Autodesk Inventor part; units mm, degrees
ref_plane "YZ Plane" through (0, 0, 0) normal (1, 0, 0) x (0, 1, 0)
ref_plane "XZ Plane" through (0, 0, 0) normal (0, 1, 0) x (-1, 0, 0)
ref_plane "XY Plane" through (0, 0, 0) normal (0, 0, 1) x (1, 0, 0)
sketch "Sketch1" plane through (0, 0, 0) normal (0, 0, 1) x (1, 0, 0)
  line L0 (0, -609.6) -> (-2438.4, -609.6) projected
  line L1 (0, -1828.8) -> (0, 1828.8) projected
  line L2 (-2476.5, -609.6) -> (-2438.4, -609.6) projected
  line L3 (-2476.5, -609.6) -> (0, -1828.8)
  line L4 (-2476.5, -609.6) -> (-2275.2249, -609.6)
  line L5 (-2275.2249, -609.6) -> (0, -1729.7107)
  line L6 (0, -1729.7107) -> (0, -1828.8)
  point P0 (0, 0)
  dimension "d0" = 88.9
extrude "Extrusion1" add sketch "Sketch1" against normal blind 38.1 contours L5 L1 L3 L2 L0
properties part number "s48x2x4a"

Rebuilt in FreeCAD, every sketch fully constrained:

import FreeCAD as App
import Part
import Sketcher
from FreeCAD import Vector
Q = App.Units.Quantity

doc = App.newDocument("Part")
body = doc.addObject("PartDesign::Body", "Body")

sketch1 = body.newObject("Sketcher::SketchObject", "Sketch")
sketch1.AttachmentSupport = (doc.getObject("XY_Plane"), [""])
sketch1.MapMode = "FlatFace"
sketch1.addGeometry([
    Part.LineSegment(Vector(0, -1730, 0), Vector(-2275, -610, 0)),
    Part.LineSegment(Vector(-2275, -610, 0), Vector(-2476, -610, 0)),
    Part.LineSegment(Vector(-2476, -610, 0), Vector(0, -1829, 0)),
    Part.LineSegment(Vector(0, -1829, 0), Vector(0, -1730, 0)),
], False)
sketch1.addConstraint([
    Sketcher.Constraint("Coincident", 0, 2, 1, 1),
    Sketcher.Constraint("Coincident", 1, 2, 2, 1),
    Sketcher.Constraint("Coincident", 2, 2, 3, 1),
    Sketcher.Constraint("Coincident", 3, 2, 0, 1),
    Sketcher.Constraint("Horizontal", 1),
    Sketcher.Constraint("Vertical", 3),
    Sketcher.Constraint("PointOnObject", 2, 2, -2),
    Sketcher.Constraint("Parallel", 0, 2),
    Sketcher.Constraint("Distance", 0, Q("2536 mm")),
    Sketcher.Constraint("DistanceY", 0, 2, -1, 1, Q("609.6 mm")),
    Sketcher.Constraint("DistanceX", 1, 2, -1, 1, Q("2476.5 mm")),
    Sketcher.Constraint("DistanceY", 2, 2, -1, 1, Q("1828.8 mm")),
])
pad1 = body.newObject("PartDesign::Pad", "Pad")
pad1.Profile = sketch1
pad1.Length = 38.1
pad1.Reversed = True

doc.recompute()
